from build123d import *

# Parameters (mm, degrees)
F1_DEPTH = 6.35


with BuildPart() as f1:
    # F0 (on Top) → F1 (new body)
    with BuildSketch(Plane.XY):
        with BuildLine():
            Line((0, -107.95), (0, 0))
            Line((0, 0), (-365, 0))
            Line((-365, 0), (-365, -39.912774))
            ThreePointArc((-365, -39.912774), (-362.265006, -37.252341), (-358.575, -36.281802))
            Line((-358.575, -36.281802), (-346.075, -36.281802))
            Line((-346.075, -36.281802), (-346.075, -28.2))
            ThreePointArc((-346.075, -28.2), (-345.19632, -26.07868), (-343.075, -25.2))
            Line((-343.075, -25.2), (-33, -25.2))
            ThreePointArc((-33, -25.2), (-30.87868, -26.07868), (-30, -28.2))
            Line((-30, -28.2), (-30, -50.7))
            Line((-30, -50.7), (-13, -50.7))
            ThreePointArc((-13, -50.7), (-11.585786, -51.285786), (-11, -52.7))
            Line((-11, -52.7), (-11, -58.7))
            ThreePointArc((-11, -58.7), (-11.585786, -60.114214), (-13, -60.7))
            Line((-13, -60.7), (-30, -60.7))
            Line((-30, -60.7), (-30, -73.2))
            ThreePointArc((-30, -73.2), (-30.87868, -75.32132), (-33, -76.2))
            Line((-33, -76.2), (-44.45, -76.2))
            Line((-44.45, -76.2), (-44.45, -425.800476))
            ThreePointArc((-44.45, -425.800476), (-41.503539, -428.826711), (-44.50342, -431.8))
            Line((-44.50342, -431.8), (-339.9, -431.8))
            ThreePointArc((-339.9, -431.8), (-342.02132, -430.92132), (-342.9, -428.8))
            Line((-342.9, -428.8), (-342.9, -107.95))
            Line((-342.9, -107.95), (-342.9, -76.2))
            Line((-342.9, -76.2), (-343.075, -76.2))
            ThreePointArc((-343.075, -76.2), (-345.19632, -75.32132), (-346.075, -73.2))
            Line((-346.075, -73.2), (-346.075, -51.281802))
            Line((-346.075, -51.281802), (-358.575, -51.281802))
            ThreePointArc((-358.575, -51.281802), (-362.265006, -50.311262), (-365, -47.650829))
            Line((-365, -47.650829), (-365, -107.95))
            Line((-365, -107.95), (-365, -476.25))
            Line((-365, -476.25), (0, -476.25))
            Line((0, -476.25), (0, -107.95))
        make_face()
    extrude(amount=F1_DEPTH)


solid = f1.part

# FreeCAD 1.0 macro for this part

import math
import FreeCAD as App
import Part
import Sketcher

doc = App.newDocument("Part")
body = doc.addObject("PartDesign::Body", "Body")

sketch1 = body.newObject("Sketcher::SketchObject", "Sketch")
sketch1.AttachmentSupport = (doc.getObject("XY_Plane"), [""])
sketch1.MapMode = "FlatFace"
sketch1.addGeometry([
    Part.LineSegment(App.Vector(0, 0, 0), App.Vector(-365, 0, 0)),
    Part.LineSegment(App.Vector(-365, 0, 0), App.Vector(-365, -39.91, 0)),
    Part.ArcOfCircle(Part.Circle(App.Vector(-358.58, -43.78, 0), App.Vector(0, 0, 1), 7.5), math.radians(90), math.radians(149)),
    Part.LineSegment(App.Vector(-358.57, -36.28, 0), App.Vector(-346.07, -36.28, 0)),
    Part.LineSegment(App.Vector(-346.07, -36.28, 0), App.Vector(-346.07, -28.2, 0)),
    Part.ArcOfCircle(Part.Circle(App.Vector(-343.07, -28.2, 0), App.Vector(0, 0, 1), 3), math.radians(90), math.radians(180)),
    Part.LineSegment(App.Vector(-343.07, -25.2, 0), App.Vector(-33, -25.2, 0)),
    Part.ArcOfCircle(Part.Circle(App.Vector(-33, -28.2, 0), App.Vector(0, 0, 1), 3), math.radians(0), math.radians(90)),
    Part.LineSegment(App.Vector(-30, -28.2, 0), App.Vector(-30, -50.7, 0)),
    Part.LineSegment(App.Vector(-30, -50.7, 0), App.Vector(-13, -50.7, 0)),
    Part.ArcOfCircle(Part.Circle(App.Vector(-13, -52.7, 0), App.Vector(0, 0, 1), 2), math.radians(0), math.radians(90)),
    Part.LineSegment(App.Vector(-11, -52.7, 0), App.Vector(-11, -58.7, 0)),
    Part.ArcOfCircle(Part.Circle(App.Vector(-13, -58.7, 0), App.Vector(0, 0, 1), 2), math.radians(-90), math.radians(0)),
    Part.LineSegment(App.Vector(-13, -60.7, 0), App.Vector(-30, -60.7, 0)),
    Part.LineSegment(App.Vector(-30, -60.7, 0), App.Vector(-30, -73.2, 0)),
    Part.ArcOfCircle(Part.Circle(App.Vector(-33, -73.2, 0), App.Vector(0, 0, 1), 3), math.radians(-90), math.radians(0)),
    Part.LineSegment(App.Vector(-33, -76.2, 0), App.Vector(-44.45, -76.2, 0)),
    Part.LineSegment(App.Vector(-44.45, -76.2, 0), App.Vector(-44.45, -425.8, 0)),
    Part.ArcOfCircle(Part.Circle(App.Vector(-44.5, -428.8, 0), App.Vector(0, 0, 1), 3), math.radians(-90), math.radians(89)),
    Part.LineSegment(App.Vector(-44.5, -431.8, 0), App.Vector(-339.9, -431.8, 0)),
    Part.ArcOfCircle(Part.Circle(App.Vector(-339.9, -428.8, 0), App.Vector(0, 0, 1), 3), math.radians(-180), math.radians(-90)),
    Part.LineSegment(App.Vector(-342.9, -428.8, 0), App.Vector(-342.9, -76.2, 0)),
    Part.LineSegment(App.Vector(-342.9, -76.2, 0), App.Vector(-343.07, -76.2, 0)),
    Part.ArcOfCircle(Part.Circle(App.Vector(-343.07, -73.2, 0), App.Vector(0, 0, 1), 3), math.radians(-180), math.radians(-90)),
    Part.LineSegment(App.Vector(-346.07, -73.2, 0), App.Vector(-346.07, -51.28, 0)),
    Part.LineSegment(App.Vector(-346.07, -51.28, 0), App.Vector(-358.57, -51.28, 0)),
    Part.ArcOfCircle(Part.Circle(App.Vector(-358.57, -43.78, 0), App.Vector(0, 0, 1), 7.5), math.radians(-149), math.radians(-90)),
    Part.LineSegment(App.Vector(-365, -47.65, 0), App.Vector(-365, -476.25, 0)),
    Part.LineSegment(App.Vector(-365, -476.25, 0), App.Vector(0, -476.25, 0)),
    Part.LineSegment(App.Vector(0, -476.25, 0), App.Vector(0, 0, 0)),
], False)
sketch1.addConstraint([
    Sketcher.Constraint("Coincident", 0, 2, 1, 1),
    Sketcher.Constraint("Coincident", 1, 2, 2, 2),
    Sketcher.Constraint("Tangent", 2, 1, 3, 1),
    Sketcher.Constraint("Coincident", 3, 2, 4, 1),
    Sketcher.Constraint("Tangent", 4, 2, 5, 2),
    Sketcher.Constraint("Tangent", 5, 1, 6, 1),
    Sketcher.Constraint("Tangent", 6, 2, 7, 2),
    Sketcher.Constraint("Tangent", 7, 1, 8, 1),
    Sketcher.Constraint("Coincident", 8, 2, 9, 1),
    Sketcher.Constraint("Tangent", 9, 2, 10, 2),
    Sketcher.Constraint("Tangent", 10, 1, 11, 1),
    Sketcher.Constraint("Tangent", 11, 2, 12, 2),
    Sketcher.Constraint("Tangent", 12, 1, 13, 1),
    Sketcher.Constraint("Coincident", 13, 2, 14, 1),
    Sketcher.Constraint("Tangent", 14, 2, 15, 2),
    Sketcher.Constraint("Tangent", 15, 1, 16, 1),
    Sketcher.Constraint("Coincident", 16, 2, 17, 1),
    Sketcher.Constraint("Coincident", 17, 2, 18, 2),
    Sketcher.Constraint("Tangent", 18, 1, 19, 1),
    Sketcher.Constraint("Tangent", 19, 2, 20, 2),
    Sketcher.Constraint("Tangent", 20, 1, 21, 1),
    Sketcher.Constraint("Coincident", 21, 2, 22, 1),
    Sketcher.Constraint("Tangent", 22, 2, 23, 2),
    Sketcher.Constraint("Tangent", 23, 1, 24, 1),
    Sketcher.Constraint("Coincident", 24, 2, 25, 1),
    Sketcher.Constraint("Tangent", 25, 2, 26, 2),
    Sketcher.Constraint("Coincident", 26, 1, 27, 1),
    Sketcher.Constraint("Coincident", 27, 2, 28, 1),
    Sketcher.Constraint("Coincident", 28, 2, 29, 1),
    Sketcher.Constraint("Coincident", 29, 2, 0, 1),
    Sketcher.Constraint("Horizontal", 0),
    Sketcher.Constraint("Vertical", 1),
    Sketcher.Constraint("Horizontal", 3),
    Sketcher.Constraint("Vertical", 4),
    Sketcher.Constraint("Horizontal", 6),
    Sketcher.Constraint("Vertical", 8),
    Sketcher.Constraint("Horizontal", 9),
    Sketcher.Constraint("Vertical", 11),
    Sketcher.Constraint("Horizontal", 13),
    Sketcher.Constraint("Vertical", 14),
    Sketcher.Constraint("Horizontal", 16),
    Sketcher.Constraint("Vertical", 17),
    Sketcher.Constraint("Horizontal", 19),
    Sketcher.Constraint("Vertical", 21),
    Sketcher.Constraint("Horizontal", 22),
    Sketcher.Constraint("Vertical", 24),
    Sketcher.Constraint("Horizontal", 25),
    Sketcher.Constraint("Vertical", 27),
    Sketcher.Constraint("Horizontal", 28),
    Sketcher.Constraint("Vertical", 29),
    Sketcher.Constraint("Coincident", 29, 2, -1, 1),
    Sketcher.Constraint("Coincident", 26, 3, 2, 3),
    Sketcher.Constraint("Equal", 5, 7),
    Sketcher.Constraint("Equal", 10, 12),
    Sketcher.Constraint("Equal", 7, 15),
    Sketcher.Constraint("Equal", 15, 18),
    Sketcher.Constraint("Equal", 18, 20),
    Sketcher.Constraint("Equal", 20, 23),
    Sketcher.Constraint("Horizontal", 15, 3, 23, 3),
    Sketcher.Constraint("Vertical", 7, 3, 15, 3),
    Sketcher.Constraint("Vertical", 5, 3, 23, 3),
    Sketcher.Constraint("Vertical", 1, 2, 26, 1),
    Sketcher.Constraint("Equal", 25, 14),
    Sketcher.Constraint("Radius", 5, 3.000001),
    Sketcher.Constraint("Radius", 10, 1.999999),
    Sketcher.Constraint("Radius", 2, 7.499998),
    Sketcher.Constraint("DistanceX", 0, 2, 0, 1, 365.0),
    Sketcher.Constraint("DistanceX", 9, 1, 9, 2, 17.0),
    Sketcher.Constraint("DistanceY", 11, 2, 11, 1, 6.0),
    Sketcher.Constraint("DistanceX", 3, 1, 3, 2, 12.5),
    Sketcher.Constraint("DistanceY", 8, 2, 8, 1, 22.5),
    Sketcher.Constraint("DistanceY", 21, 1, 21, 2, 352.6),
    Sketcher.Constraint("DistanceX", 7, 3, -1, 1, 33.000001),
    Sketcher.Constraint("DistanceY", 24, 2, 3, 2, 15.0),
    Sketcher.Constraint("DistanceX", 16, 2, 16, 1, 11.45),
    Sketcher.Constraint("DistanceY", 29, 1, 29, 2, 476.25),
    Sketcher.Constraint("DistanceY", 5, 3, -1, 1, 28.200001),
    Sketcher.Constraint("DistanceX", 20, 3, -1, 1, 339.899999),
    Sketcher.Constraint("DistanceX", 6, 1, 6, 2, 310.075),
    Sketcher.Constraint("DistanceY", 24, 1, 24, 2, 21.918198),
    Sketcher.Constraint("DistanceX", 19, 2, 19, 1, 295.39658),
])
pad1 = body.newObject("PartDesign::Pad", "Pad")
pad1.Profile = sketch1
pad1.Length = 6.35

doc.recompute()
